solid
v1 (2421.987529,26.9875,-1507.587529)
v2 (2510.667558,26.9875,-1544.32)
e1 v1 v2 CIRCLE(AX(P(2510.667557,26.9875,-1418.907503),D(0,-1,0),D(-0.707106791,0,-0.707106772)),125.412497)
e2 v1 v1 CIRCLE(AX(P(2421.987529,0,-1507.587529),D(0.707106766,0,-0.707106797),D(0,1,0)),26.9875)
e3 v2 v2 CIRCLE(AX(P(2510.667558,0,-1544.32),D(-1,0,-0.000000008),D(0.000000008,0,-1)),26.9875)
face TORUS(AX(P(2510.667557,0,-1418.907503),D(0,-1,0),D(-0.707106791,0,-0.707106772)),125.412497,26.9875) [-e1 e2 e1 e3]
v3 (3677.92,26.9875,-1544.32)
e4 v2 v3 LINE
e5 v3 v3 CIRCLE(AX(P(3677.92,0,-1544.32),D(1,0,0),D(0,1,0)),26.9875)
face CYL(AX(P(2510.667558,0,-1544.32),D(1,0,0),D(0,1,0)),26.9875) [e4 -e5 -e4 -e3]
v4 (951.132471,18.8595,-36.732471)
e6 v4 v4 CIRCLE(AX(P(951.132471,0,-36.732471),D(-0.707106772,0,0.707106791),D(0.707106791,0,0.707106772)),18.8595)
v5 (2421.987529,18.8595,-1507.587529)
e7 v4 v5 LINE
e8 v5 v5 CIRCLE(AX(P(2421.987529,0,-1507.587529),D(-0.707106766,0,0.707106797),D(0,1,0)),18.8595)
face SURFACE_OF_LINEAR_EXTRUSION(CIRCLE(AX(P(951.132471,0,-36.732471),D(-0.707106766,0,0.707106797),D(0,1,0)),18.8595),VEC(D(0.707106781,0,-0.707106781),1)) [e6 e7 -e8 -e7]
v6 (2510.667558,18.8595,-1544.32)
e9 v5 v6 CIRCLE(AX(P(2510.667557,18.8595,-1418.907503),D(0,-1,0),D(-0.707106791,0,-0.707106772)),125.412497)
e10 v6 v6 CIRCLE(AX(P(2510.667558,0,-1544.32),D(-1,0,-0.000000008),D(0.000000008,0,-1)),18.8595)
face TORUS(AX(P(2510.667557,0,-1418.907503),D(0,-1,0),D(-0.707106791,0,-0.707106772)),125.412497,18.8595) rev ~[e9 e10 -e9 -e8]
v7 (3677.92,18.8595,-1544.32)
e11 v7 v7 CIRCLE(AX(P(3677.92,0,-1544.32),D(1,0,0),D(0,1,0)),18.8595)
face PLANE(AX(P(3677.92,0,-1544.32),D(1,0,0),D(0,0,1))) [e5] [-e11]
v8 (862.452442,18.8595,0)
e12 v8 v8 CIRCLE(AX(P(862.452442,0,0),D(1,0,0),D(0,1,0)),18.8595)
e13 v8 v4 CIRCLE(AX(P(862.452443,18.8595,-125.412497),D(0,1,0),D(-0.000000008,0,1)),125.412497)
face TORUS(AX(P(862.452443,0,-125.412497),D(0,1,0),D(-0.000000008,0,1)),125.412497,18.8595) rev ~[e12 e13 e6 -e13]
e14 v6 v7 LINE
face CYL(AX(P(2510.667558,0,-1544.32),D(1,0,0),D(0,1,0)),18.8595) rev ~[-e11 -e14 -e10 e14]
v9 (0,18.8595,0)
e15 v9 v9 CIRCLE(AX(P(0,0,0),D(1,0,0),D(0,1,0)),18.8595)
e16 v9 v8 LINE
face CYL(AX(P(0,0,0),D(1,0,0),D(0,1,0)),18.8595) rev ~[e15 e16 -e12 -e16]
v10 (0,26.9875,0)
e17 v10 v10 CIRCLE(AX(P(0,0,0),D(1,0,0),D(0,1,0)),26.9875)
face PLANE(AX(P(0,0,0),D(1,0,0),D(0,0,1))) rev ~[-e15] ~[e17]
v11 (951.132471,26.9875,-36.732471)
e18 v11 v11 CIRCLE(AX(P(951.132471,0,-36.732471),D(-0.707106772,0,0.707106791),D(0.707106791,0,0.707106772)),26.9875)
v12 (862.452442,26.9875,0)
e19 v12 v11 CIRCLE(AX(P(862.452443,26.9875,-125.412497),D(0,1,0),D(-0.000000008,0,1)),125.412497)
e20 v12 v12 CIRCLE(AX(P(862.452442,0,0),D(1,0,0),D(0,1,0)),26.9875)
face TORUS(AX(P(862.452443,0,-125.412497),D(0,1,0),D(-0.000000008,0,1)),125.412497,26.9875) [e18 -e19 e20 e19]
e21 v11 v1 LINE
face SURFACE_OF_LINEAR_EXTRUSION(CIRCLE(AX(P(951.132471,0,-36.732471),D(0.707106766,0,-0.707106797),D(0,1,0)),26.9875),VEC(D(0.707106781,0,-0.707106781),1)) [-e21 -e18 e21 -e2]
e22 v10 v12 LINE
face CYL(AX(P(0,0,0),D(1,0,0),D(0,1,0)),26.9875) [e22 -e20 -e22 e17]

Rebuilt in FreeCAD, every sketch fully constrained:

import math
import FreeCAD as App
import Part
import Sketcher
Q = App.Units.Quantity

doc = App.newDocument("Part")
body = doc.addObject("PartDesign::Body", "Body")

# Sketch on YZ plane
sketch1 = doc.addObject("Sketcher::SketchObject", "Sketch")
body.addObject(sketch1)
sketch1.AttachmentSupport = (doc.YZ_Plane, [""])
sketch1.MapMode = "FlatFace"
sketch1.addGeometry([
    Part.Circle(App.Vector(0, 0, 0), App.Vector(0, 0, 1), 27),
    Part.Circle(App.Vector(0, 0, 0), App.Vector(0, 0, 1), 19),
], False)
sketch1.addConstraint([
    Sketcher.Constraint("Coincident", 0, 3, -1, 1),
    Sketcher.Constraint("Coincident", 1, 3, -1, 1),
    Sketcher.Constraint("Diameter", 0, Q("2.125 in")),
    Sketcher.Constraint("Diameter", 1, Q("1.485 in")),
])

# Sketch on XZ plane
sketch2 = doc.addObject("Sketcher::SketchObject", "Sketch001")
body.addObject(sketch2)
sketch2.AttachmentSupport = (doc.XZ_Plane, [""])
sketch2.MapMode = "FlatFace"
sketch2.addGeometry([
    Part.LineSegment(App.Vector(0, 0, 0), App.Vector(862, 0, 0)),  # 0
    Part.ArcOfCircle(Part.Circle(App.Vector(862, -125, 0), App.Vector(0, 0, 1), 125), math.radians(45), math.radians(90)),  # 1
    Part.LineSegment(App.Vector(951, -37, 0), App.Vector(2422, -1508, 0)),  # 2
    Part.ArcOfCircle(Part.Circle(App.Vector(2511, -1419, 0), App.Vector(0, 0, 1), 125), math.radians(-135), math.radians(-90)),  # 3
    Part.LineSegment(App.Vector(2511, -1544, 0), App.Vector(3678, -1544, 0)),  # 4
], False)
sketch2.addConstraint([
    Sketcher.Constraint("Tangent", 0, 2, 1, 2),
    Sketcher.Constraint("Tangent", 1, 1, 2, 1),
    Sketcher.Constraint("Tangent", 2, 2, 3, 1),
    Sketcher.Constraint("Tangent", 3, 2, 4, 1),
    Sketcher.Constraint("Horizontal", 0),
    Sketcher.Constraint("Horizontal", 4),
    Sketcher.Constraint("Coincident", 0, 1, -1, 1),
    Sketcher.Constraint("Equal", 1, 3),
    Sketcher.Constraint("Angle", 2, Q("-45 deg")),
    Sketcher.Constraint("Radius", 1, Q("4.9374999 in")),
    Sketcher.Constraint("DistanceY", 3, 2, -1, 1, Q("60.8 in")),
    Sketcher.Constraint("DistanceX", -1, 1, 4, 2, Q("144.8 in")),
    Sketcher.Constraint("DistanceX", 0, 1, 0, 2, 862.452442),
])
doc.recompute()

additivepipe = doc.addObject("PartDesign::AdditivePipe", "AdditivePipe")
body.addObject(additivepipe)
additivepipe.Profile = sketch1
additivepipe.Spine = (sketch2, ["Edge1", "Edge2", "Edge3", "Edge4", "Edge5"])

doc.recompute()
